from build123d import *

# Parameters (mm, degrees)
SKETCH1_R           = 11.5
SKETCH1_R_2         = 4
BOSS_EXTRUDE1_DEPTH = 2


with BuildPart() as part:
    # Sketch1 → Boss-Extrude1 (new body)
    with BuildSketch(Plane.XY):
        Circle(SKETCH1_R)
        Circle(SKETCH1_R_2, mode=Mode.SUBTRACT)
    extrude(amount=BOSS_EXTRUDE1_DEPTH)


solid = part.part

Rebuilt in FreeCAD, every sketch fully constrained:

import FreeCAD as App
import Part
import Sketcher

V = App.Vector
Q = App.Units.Quantity

doc = App.newDocument("Part")
params = doc.addObject("Spreadsheet::Sheet", "Params")
for row, (alias, value) in enumerate([
    ("sketch1_diameter", "23 mm"),
    ("sketch1_diameter2", "8 mm"),
    ("pad1_length", "2 mm"),
], start=1):
    params.set(f"A{row}", alias)
    params.set(f"B{row}", "=" + value)
    params.setAlias(f"B{row}", alias)

body = doc.addObject("PartDesign::Body", "Body")

# Sketch on XY plane
sketch1 = body.newObject("Sketcher::SketchObject", "Sketch")
sketch1.AttachmentSupport = (doc.getObject("XY_Plane"), [""])
sketch1.MapMode = "FlatFace"
sketch1.addGeometry(Part.Circle(V(0, 0, 0), V(0, 0, 1), 11.5), False)
sketch1.addGeometry(Part.Circle(V(0, 0, 0), V(0, 0, 1), 4), False)
sketch1.addConstraint(Sketcher.Constraint("Coincident", 0, 3, -1, 1))
sketch1.addConstraint(Sketcher.Constraint("Coincident", 1, 3, -1, 1))
sketch1.addConstraint(Sketcher.Constraint("Diameter", 0, Q("23 mm")))
sketch1.addConstraint(Sketcher.Constraint("Diameter", 1, Q("8 mm")))
sketch1.setExpression("Constraints[2]", "Params.sketch1_diameter")
sketch1.setExpression("Constraints[3]", "Params.sketch1_diameter2")
pad1 = body.newObject("PartDesign::Pad", "Pad")
pad1.Profile = sketch1
pad1.setExpression("Length", "Params.pad1_length")

doc.recompute()
